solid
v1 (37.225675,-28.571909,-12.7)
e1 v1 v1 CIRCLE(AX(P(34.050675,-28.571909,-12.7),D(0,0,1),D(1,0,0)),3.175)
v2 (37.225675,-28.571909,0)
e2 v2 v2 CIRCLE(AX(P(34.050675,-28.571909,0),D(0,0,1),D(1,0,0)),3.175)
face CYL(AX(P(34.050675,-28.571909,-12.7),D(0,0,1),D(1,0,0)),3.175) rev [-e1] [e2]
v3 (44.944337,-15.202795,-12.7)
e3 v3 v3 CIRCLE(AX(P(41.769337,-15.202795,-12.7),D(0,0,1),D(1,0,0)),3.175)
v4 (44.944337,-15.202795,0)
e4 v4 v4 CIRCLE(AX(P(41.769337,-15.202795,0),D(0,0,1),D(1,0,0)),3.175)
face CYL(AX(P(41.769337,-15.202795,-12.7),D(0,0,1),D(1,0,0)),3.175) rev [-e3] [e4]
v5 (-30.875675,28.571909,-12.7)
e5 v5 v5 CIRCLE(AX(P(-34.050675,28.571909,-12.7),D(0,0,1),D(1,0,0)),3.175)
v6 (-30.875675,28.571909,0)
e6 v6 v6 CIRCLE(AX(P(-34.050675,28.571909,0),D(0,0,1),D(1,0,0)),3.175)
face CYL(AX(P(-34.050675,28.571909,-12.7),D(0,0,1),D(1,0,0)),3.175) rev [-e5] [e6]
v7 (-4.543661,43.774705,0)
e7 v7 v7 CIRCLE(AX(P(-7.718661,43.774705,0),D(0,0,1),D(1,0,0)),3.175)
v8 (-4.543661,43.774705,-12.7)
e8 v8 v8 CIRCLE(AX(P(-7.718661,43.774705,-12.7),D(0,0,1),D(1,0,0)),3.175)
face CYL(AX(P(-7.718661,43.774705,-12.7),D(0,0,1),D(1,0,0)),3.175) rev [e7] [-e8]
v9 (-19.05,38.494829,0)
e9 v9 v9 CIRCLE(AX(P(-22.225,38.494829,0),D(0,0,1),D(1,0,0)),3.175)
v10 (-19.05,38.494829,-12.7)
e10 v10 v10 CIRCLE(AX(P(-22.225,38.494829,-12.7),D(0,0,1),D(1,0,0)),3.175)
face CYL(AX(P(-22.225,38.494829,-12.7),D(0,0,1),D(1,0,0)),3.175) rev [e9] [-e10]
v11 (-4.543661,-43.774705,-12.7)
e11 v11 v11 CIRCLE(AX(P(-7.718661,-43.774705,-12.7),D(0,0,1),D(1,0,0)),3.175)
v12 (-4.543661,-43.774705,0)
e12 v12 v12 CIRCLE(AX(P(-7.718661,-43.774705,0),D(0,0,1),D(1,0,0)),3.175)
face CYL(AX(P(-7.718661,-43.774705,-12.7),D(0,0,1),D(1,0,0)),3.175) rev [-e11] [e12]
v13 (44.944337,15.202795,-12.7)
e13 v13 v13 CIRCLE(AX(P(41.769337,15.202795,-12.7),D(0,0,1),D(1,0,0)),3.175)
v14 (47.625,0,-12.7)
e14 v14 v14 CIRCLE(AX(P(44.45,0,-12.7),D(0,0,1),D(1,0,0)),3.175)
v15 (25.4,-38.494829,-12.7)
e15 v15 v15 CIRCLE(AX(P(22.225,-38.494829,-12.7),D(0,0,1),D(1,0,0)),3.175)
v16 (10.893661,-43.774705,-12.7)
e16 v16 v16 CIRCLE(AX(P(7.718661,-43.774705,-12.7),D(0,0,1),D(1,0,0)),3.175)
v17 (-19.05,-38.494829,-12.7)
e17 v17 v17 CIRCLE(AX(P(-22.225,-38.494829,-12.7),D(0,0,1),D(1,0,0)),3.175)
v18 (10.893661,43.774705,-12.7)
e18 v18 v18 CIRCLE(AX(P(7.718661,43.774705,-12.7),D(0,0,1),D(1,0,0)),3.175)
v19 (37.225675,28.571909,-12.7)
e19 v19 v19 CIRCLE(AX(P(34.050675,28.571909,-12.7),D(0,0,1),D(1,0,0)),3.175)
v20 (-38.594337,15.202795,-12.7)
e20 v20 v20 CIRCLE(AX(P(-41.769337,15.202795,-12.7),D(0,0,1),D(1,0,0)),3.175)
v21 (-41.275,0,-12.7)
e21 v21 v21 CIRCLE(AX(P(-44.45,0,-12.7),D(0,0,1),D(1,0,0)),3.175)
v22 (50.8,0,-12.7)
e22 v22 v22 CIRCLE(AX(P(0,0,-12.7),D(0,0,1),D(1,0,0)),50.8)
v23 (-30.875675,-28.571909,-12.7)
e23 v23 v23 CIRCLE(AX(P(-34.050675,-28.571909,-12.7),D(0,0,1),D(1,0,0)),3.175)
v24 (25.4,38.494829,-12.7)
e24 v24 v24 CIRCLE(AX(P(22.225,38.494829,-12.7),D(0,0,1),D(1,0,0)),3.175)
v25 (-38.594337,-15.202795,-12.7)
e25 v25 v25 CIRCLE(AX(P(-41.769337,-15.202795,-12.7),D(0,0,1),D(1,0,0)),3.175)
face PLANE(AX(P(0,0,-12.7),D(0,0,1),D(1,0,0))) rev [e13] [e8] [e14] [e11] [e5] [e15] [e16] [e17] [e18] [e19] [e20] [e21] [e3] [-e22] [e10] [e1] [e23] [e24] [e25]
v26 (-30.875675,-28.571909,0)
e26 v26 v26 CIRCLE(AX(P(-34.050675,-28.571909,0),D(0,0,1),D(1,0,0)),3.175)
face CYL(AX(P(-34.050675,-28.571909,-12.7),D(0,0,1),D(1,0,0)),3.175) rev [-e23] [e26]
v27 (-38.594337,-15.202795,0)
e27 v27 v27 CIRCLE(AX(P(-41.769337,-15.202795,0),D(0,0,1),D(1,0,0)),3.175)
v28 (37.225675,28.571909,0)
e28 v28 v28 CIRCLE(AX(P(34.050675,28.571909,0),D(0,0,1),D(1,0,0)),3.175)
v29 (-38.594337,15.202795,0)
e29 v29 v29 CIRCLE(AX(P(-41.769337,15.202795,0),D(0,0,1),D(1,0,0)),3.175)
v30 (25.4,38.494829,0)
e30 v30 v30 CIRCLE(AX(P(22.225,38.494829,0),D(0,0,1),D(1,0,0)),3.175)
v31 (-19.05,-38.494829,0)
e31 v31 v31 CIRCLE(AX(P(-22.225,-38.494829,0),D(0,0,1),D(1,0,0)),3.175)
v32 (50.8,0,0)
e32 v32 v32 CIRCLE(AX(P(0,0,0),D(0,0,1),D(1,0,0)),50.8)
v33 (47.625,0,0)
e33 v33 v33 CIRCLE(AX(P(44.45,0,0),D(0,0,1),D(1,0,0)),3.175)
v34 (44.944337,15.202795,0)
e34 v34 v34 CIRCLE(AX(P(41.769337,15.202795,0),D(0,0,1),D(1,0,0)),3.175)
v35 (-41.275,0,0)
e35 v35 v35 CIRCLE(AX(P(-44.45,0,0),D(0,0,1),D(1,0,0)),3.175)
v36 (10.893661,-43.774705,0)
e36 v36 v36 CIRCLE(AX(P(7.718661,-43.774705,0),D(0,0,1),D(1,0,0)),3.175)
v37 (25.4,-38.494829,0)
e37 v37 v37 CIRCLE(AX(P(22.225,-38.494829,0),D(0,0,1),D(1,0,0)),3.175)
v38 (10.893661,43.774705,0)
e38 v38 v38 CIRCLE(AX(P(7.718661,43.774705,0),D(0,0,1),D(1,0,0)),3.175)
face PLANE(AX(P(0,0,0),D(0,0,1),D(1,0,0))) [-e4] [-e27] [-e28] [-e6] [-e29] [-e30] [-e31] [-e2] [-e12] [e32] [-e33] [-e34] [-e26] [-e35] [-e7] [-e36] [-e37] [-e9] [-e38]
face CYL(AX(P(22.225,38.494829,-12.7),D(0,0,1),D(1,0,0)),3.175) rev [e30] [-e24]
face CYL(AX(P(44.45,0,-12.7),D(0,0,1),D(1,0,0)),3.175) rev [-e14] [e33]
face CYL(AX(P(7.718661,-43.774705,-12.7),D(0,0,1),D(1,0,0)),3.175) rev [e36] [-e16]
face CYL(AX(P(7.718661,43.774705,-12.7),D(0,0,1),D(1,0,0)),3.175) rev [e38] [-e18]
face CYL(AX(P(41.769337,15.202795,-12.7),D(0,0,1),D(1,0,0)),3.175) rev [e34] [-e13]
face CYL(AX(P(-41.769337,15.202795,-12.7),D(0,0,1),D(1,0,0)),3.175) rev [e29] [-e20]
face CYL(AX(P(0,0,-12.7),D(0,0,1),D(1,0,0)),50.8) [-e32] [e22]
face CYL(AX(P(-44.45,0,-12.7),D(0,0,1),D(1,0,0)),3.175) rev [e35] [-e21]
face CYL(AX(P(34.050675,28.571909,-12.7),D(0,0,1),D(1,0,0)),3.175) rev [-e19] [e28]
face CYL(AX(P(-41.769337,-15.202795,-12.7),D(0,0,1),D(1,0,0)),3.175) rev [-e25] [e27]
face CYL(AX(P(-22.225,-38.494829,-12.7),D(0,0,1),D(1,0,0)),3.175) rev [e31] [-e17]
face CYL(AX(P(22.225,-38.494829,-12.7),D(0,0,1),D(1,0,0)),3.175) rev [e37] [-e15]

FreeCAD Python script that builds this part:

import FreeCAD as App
import Part
import Sketcher
Q = App.Units.Quantity

doc = App.newDocument("Part")
body = doc.addObject("PartDesign::Body", "Body")

sketch1 = body.newObject("Sketcher::SketchObject", "Sketch")
sketch1.AttachmentSupport = (doc.getObject("XY_Plane"), [""])
sketch1.MapMode = "FlatFace"
sketch1.addGeometry(Part.Circle(App.Vector(0, 0, 0), App.Vector(0, 0, 1), 50.8), False)
sketch1.addConstraint([
    Sketcher.Constraint("Coincident", 0, 3, -1, 1),
    Sketcher.Constraint("Diameter", 0, Q("4 in")),
])
pad1 = body.newObject("PartDesign::Pad", "Pad")
pad1.Profile = sketch1
pad1.Length = Q("0.5 in")
pad1.Reversed = True

sketch2 = body.newObject("Sketcher::SketchObject", "Sketch001")
sketch2.AttachmentSupport = (doc.getObject("XY_Plane"), [""])
sketch2.MapMode = "FlatFace"
sketch2.addGeometry([
    Part.Circle(App.Vector(-44.45, 0, 0), App.Vector(0, 0, 1), 3.175),
    Part.Circle(App.Vector(-41.769337, 15.202795, 0), App.Vector(0, 0, 1), 3.175),
    Part.Circle(App.Vector(-34.050675, 28.571909, 0), App.Vector(0, 0, 1), 3.175),
    Part.Circle(App.Vector(-22.225, 38.494829, 0), App.Vector(0, 0, 1), 3.175),
    Part.Circle(App.Vector(-7.718661, 43.774705, 0), App.Vector(0, 0, 1), 3.175),
    Part.Circle(App.Vector(7.718661, 43.774705, 0), App.Vector(0, 0, 1), 3.175),
    Part.Circle(App.Vector(22.225, 38.494829, 0), App.Vector(0, 0, 1), 3.175),
    Part.Circle(App.Vector(34.050675, 28.571909, 0), App.Vector(0, 0, 1), 3.175),
    Part.Circle(App.Vector(41.769337, 15.202795, 0), App.Vector(0, 0, 1), 3.175),
    Part.Circle(App.Vector(44.45, 0, 0), App.Vector(0, 0, 1), 3.175),
    Part.Circle(App.Vector(41.769337, -15.202795, 0), App.Vector(0, 0, 1), 3.175),
    Part.Circle(App.Vector(34.050675, -28.571909, 0), App.Vector(0, 0, 1), 3.175),
    Part.Circle(App.Vector(22.225, -38.494829, 0), App.Vector(0, 0, 1), 3.175),
    Part.Circle(App.Vector(7.718661, -43.774705, 0), App.Vector(0, 0, 1), 3.175),
    Part.Circle(App.Vector(-7.718661, -43.774705, 0), App.Vector(0, 0, 1), 3.175),
    Part.Circle(App.Vector(-22.225, -38.494829, 0), App.Vector(0, 0, 1), 3.175),
    Part.Circle(App.Vector(-34.050675, -28.571909, 0), App.Vector(0, 0, 1), 3.175),
    Part.Circle(App.Vector(-41.769337, -15.202795, 0), App.Vector(0, 0, 1), 3.175),
], False)
sketch2.addConstraint([
    Sketcher.Constraint("Equal", 0, 1),
    Sketcher.Constraint("Equal", 1, 2),
    Sketcher.Constraint("Equal", 2, 3),
    Sketcher.Constraint("Equal", 3, 4),
    Sketcher.Constraint("Equal", 4, 5),
    Sketcher.Constraint("Equal", 5, 6),
    Sketcher.Constraint("Equal", 6, 7),
    Sketcher.Constraint("Equal", 7, 8),
    Sketcher.Constraint("Equal", 8, 9),
    Sketcher.Constraint("Equal", 9, 10),
    Sketcher.Constraint("Equal", 10, 11),
    Sketcher.Constraint("Equal", 11, 12),
    Sketcher.Constraint("Equal", 12, 13),
    Sketcher.Constraint("Equal", 13, 14),
    Sketcher.Constraint("Equal", 14, 15),
    Sketcher.Constraint("Equal", 15, 16),
    Sketcher.Constraint("Equal", 16, 17),
    Sketcher.Constraint("Symmetric", 0, 3, 9, 3, -1, 1),
    Sketcher.Constraint("Symmetric", 1, 3, 10, 3, -1, 1),
    Sketcher.Constraint("Symmetric", 2, 3, 11, 3, -1, 1),
    Sketcher.Constraint("Symmetric", 3, 3, 12, 3, -1, 1),
    Sketcher.Constraint("Symmetric", 4, 3, 13, 3, -1, 1),
    Sketcher.Constraint("Symmetric", 5, 3, 14, 3, -1, 1),
    Sketcher.Constraint("Symmetric", 6, 3, 15, 3, -1, 1),
    Sketcher.Constraint("Symmetric", 7, 3, 16, 3, -1, 1),
    Sketcher.Constraint("Symmetric", 8, 3, 17, 3, -1, 1),
    Sketcher.Constraint("Symmetric", 4, 3, 5, 3, -2),
    Sketcher.Constraint("Symmetric", 3, 3, 6, 3, -2),
    Sketcher.Constraint("Symmetric", 2, 3, 7, 3, -2),
    Sketcher.Constraint("Symmetric", 1, 3, 8, 3, -2),
    Sketcher.Constraint("PointOnObject", 0, 3, -1),
    Sketcher.Constraint("Diameter", 0, Q("0.25 in")),
    Sketcher.Constraint("DistanceX", 0, 3, -1, 1, Q("1.75 in")),
    Sketcher.Constraint("DistanceX", 3, 3, 6, 3, Q("1.75 in")),
    Sketcher.Constraint("DistanceX", 1, 3, 5, 3, Q("49.487998 mm")),
    Sketcher.Constraint("DistanceY", 10, 3, 5, 3, Q("58.9775 mm")),
    Sketcher.Constraint("DistanceY", -1, 1, 2, 3, Q("28.571909 mm")),
    Sketcher.Constraint("DistanceY", -1, 1, 3, 3, Q("38.494829 mm")),
    Sketcher.Constraint("DistanceX", 4, 3, -1, 1, Q("7.718661 mm")),
    Sketcher.Constraint("DistanceX", 1, 3, 2, 3, Q("7.718661 mm")),
    Sketcher.Constraint("DistanceY", 1, 3, 4, 3, Q("28.571909 mm")),
])
pocket1 = body.newObject("PartDesign::Pocket", "Pocket")
pocket1.Profile = sketch2
pocket1.Length = Q("0.5 in")

doc.recompute()
